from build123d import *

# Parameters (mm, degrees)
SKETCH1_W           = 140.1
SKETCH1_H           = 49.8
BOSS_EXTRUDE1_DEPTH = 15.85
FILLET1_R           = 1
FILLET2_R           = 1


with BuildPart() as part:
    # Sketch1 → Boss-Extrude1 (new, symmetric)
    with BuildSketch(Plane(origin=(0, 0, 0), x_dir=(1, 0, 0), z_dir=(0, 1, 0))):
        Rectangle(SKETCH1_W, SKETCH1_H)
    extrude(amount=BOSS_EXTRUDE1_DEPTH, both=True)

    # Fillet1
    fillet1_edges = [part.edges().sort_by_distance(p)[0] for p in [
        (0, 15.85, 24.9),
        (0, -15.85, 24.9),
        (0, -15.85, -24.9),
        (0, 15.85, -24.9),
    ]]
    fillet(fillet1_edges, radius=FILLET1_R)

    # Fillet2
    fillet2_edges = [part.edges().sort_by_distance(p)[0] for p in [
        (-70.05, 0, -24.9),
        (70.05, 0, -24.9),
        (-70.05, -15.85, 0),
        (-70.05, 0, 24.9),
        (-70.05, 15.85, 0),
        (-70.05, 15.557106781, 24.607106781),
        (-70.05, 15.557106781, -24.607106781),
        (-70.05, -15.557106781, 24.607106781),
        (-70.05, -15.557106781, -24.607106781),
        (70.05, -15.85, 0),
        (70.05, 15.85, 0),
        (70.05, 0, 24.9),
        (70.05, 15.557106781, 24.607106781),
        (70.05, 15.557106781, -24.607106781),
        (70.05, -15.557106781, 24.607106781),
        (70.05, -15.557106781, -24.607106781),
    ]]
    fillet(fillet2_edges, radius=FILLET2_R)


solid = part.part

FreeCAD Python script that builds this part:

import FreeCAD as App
import Part
import Sketcher

V = App.Vector


def edges_at(feature, points):
    """Names of the edges that pass closest to the given points."""
    edges = feature.Shape.Edges
    near = lambda p: min(range(len(edges)), key=lambda i: edges[i].distToShape(Part.Vertex(*p))[0])
    return sorted({f"Edge{near(p) + 1}" for p in points})


def add_polygon(sketch, points):
    """Adds a closed chain of lines whose ends are joined by coincident constraints."""
    first, n = sketch.GeometryCount, len(points)
    for a, b in zip(points, points[1:] + points[:1]):
        sketch.addGeometry(Part.LineSegment(App.Vector(*a, 0), App.Vector(*b, 0)), False)
    for i in range(n):
        sketch.addConstraint(Sketcher.Constraint("Coincident", first + i, 2, first + (i + 1) % n, 1))

doc = App.newDocument("Part")
body = doc.addObject("PartDesign::Body", "Body")

# Sketch on XZ plane
sketch1 = body.newObject("Sketcher::SketchObject", "Sketch")
sketch1.AttachmentSupport = (doc.getObject("XZ_Plane"), [""])
sketch1.MapMode = "FlatFace"
add_polygon(sketch1, [(-70, -25), (-70, 25), (70, 25), (70, -25)])  # lines 0-3
sketch1.addConstraint([
    Sketcher.Constraint("Vertical", 0),
    Sketcher.Constraint("Horizontal", 1),
    Sketcher.Constraint("Vertical", 2),
    Sketcher.Constraint("Horizontal", 3),
    Sketcher.Constraint("Symmetric", 0, 2, 2, 2, -1, 1),
    Sketcher.Constraint("DistanceX", 1, 1, 1, 2, 140.1),
    Sketcher.Constraint("DistanceY", 0, 1, 0, 2, 49.8),
])
pad1 = body.newObject("PartDesign::Pad", "Pad")
pad1.Profile = sketch1
pad1.Length = 31.7
pad1.Midplane = True
doc.recompute()

fillet = body.newObject("PartDesign::Fillet", "Fillet")
fillet.Base = (pad1, edges_at(pad1, [
    (0, 15.85, 24.9),
    (0, -15.85, 24.9),
    (0, -15.85, -24.9),
    (0, 15.85, -24.9),
]))
fillet.Radius = 1
doc.recompute()

fillet2 = body.newObject("PartDesign::Fillet", "Fillet001")
fillet2.Base = (fillet, edges_at(fillet, [
    (-70.05, 0, -24.9),
    (70.05, 0, -24.9),
    (-70.05, -15.85, 0),
    (-70.05, 0, 24.9),
    (-70.05, 15.85, 0),
    (-70.05, 15.557, 24.607),
    (-70.05, 15.557, -24.607),
    (-70.05, -15.557, 24.607),
    (-70.05, -15.557, -24.607),
    (70.05, -15.85, 0),
    (70.05, 15.85, 0),
    (70.05, 0, 24.9),
    (70.05, 15.557, 24.607),
    (70.05, 15.557, -24.607),
    (70.05, -15.557, 24.607),
    (70.05, -15.557, -24.607),
]))
fillet2.Radius = 1

doc.recompute()
